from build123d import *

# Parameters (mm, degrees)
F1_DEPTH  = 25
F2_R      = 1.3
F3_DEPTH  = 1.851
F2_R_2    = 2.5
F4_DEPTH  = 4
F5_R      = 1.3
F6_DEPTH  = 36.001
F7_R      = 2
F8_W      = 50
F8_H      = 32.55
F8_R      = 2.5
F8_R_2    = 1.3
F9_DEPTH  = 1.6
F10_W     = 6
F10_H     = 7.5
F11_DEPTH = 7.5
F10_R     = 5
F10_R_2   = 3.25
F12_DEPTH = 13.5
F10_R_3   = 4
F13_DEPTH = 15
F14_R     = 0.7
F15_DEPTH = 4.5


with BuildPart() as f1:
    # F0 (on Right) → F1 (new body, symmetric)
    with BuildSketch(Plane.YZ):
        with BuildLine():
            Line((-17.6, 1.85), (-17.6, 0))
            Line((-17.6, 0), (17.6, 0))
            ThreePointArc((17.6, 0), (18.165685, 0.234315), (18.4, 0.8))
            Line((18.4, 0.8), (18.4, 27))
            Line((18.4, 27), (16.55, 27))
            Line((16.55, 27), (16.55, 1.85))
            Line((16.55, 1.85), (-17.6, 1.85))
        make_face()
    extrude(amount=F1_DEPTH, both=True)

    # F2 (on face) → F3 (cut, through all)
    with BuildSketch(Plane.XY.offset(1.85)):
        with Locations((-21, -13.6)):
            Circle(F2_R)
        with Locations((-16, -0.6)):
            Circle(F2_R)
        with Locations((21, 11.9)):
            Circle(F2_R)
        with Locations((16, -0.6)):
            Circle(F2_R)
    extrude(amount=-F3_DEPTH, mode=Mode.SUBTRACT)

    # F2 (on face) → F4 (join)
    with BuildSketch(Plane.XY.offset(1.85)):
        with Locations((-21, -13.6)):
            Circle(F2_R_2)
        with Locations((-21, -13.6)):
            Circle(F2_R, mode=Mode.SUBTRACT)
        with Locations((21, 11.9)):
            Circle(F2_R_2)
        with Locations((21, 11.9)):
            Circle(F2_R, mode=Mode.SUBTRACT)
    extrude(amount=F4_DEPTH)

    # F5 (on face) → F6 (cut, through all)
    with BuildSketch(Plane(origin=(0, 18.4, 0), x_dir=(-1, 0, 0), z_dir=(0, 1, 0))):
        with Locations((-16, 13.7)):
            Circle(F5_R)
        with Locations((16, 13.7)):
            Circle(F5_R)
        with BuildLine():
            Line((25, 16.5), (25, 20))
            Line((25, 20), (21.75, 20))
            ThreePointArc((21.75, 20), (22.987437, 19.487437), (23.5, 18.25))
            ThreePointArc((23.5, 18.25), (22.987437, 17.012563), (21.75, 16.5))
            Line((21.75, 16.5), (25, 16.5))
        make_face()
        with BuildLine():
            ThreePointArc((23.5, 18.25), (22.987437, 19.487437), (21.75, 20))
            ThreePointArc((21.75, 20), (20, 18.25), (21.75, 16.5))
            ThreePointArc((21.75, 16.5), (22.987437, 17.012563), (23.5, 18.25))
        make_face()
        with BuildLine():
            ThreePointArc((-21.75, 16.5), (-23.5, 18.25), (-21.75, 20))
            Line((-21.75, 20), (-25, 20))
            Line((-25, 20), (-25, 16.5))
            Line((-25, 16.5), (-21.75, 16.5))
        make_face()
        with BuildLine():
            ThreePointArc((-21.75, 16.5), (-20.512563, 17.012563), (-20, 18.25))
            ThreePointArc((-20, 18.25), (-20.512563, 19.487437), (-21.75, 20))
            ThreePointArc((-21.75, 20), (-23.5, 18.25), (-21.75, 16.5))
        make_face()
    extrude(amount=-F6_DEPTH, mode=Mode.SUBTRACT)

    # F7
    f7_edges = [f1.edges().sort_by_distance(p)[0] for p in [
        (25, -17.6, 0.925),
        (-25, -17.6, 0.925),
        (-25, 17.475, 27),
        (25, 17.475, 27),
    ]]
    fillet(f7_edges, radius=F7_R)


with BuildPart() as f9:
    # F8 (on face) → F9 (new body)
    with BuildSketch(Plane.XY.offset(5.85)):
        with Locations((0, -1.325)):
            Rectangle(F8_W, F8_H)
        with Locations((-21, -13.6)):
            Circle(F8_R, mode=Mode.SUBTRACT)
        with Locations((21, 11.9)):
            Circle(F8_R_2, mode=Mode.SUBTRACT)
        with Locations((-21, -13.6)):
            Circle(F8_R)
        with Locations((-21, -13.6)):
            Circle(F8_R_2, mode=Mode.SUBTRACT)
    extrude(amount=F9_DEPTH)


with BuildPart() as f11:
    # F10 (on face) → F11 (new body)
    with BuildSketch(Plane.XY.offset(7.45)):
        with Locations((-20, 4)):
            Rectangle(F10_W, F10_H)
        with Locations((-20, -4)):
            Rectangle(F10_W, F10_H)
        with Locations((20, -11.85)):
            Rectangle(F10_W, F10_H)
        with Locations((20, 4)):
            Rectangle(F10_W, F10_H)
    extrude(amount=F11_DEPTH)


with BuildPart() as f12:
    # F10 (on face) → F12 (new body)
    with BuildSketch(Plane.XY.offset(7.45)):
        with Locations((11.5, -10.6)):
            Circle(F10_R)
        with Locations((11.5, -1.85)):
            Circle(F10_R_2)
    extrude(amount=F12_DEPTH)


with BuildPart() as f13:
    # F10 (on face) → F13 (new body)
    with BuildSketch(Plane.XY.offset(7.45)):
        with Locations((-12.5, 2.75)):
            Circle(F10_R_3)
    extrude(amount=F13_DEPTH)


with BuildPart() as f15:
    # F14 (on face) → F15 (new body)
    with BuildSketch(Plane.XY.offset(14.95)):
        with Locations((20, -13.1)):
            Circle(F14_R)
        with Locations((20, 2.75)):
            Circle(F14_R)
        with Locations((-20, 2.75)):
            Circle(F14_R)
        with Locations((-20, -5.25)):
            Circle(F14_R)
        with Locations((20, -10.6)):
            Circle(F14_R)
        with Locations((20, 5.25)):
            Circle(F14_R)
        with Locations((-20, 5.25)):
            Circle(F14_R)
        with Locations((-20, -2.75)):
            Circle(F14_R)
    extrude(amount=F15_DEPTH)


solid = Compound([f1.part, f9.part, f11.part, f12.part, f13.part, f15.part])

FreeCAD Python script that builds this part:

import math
import FreeCAD as App
import Part
import Sketcher
from FreeCAD import Vector
Q = App.Units.Quantity


def edges_at(feature, points):
    """Names of the edges that pass closest to the given points."""
    edges = feature.Shape.Edges
    near = lambda p: min(range(len(edges)), key=lambda i: edges[i].distToShape(Part.Vertex(*p))[0])
    return sorted({f"Edge{near(p) + 1}" for p in points})

doc = App.newDocument("Part")
body = doc.addObject("PartDesign::Body", "Body")

# Sketch on YZ plane
sketch1 = doc.addObject("Sketcher::SketchObject", "Sketch")
body.addObject(sketch1)
sketch1.AttachmentSupport = (doc.YZ_Plane, [""])
sketch1.MapMode = "FlatFace"
sketch1.addGeometry(Part.LineSegment(Vector(-17.6, 1.85, 0), Vector(-17.6, 0, 0)), False)
sketch1.addGeometry(Part.LineSegment(Vector(-17.6, 0, 0), Vector(17.6, 0, 0)), False)
sketch1.addGeometry(Part.ArcOfCircle(Part.Circle(Vector(17.599999, 0.800001, 0), Vector(0, 0, 1), 0.800001), math.radians(-89.999896), math.radians(-0.000104)), False)
sketch1.addGeometry(Part.LineSegment(Vector(18.4, 0.8, 0), Vector(18.4, 27, 0)), False)
sketch1.addGeometry(Part.LineSegment(Vector(18.4, 27, 0), Vector(16.55, 27, 0)), False)
sketch1.addGeometry(Part.LineSegment(Vector(16.55, 27, 0), Vector(16.55, 1.85, 0)), False)
sketch1.addGeometry(Part.LineSegment(Vector(16.55, 1.85, 0), Vector(-17.6, 1.85, 0)), False)
sketch1.addConstraint(Sketcher.Constraint("Coincident", 0, 2, 1, 1))
sketch1.addConstraint(Sketcher.Constraint("Tangent", 1, 2, 2, 1))
sketch1.addConstraint(Sketcher.Constraint("Tangent", 2, 2, 3, 1))
sketch1.addConstraint(Sketcher.Constraint("Coincident", 3, 2, 4, 1))
sketch1.addConstraint(Sketcher.Constraint("Coincident", 4, 2, 5, 1))
sketch1.addConstraint(Sketcher.Constraint("Coincident", 5, 2, 6, 1))
sketch1.addConstraint(Sketcher.Constraint("Coincident", 6, 2, 0, 1))
sketch1.addConstraint(Sketcher.Constraint("Vertical", 0))
sketch1.addConstraint(Sketcher.Constraint("Horizontal", 1))
sketch1.addConstraint(Sketcher.Constraint("Vertical", 3))
sketch1.addConstraint(Sketcher.Constraint("Horizontal", 4))
sketch1.addConstraint(Sketcher.Constraint("Vertical", 5))
sketch1.addConstraint(Sketcher.Constraint("Horizontal", 6))
sketch1.addConstraint(Sketcher.Constraint("Symmetric", 0, 2, 1, 2, -1, 1))
sketch1.addConstraint(Sketcher.Constraint("Equal", 4, 0))
sketch1.addConstraint(Sketcher.Constraint("Radius", 2, Q("0.800001 mm")))
sketch1.addConstraint(Sketcher.Constraint("DistanceX", 1, 1, 1, 2, Q("35.2 mm")))
sketch1.addConstraint(Sketcher.Constraint("DistanceY", 3, 1, 3, 2, Q("26.2 mm")))
sketch1.addConstraint(Sketcher.Constraint("DistanceX", 4, 2, 4, 1, Q("1.85 mm")))
pad1 = doc.addObject("PartDesign::Pad", "Pad")
body.addObject(pad1)
pad1.Profile = sketch1
pad1.Length = 50
pad1.Midplane = True

# Sketch on XY plane
sketch2 = doc.addObject("Sketcher::SketchObject", "Sketch001")
body.addObject(sketch2)
sketch2.AttachmentSupport = (doc.XY_Plane, [""])
sketch2.MapMode = "FlatFace"
sketch2.AttachmentOffset = App.Placement(Vector(0, 0, 1.85), App.Rotation())
sketch2.addGeometry(Part.Circle(Vector(-21, -13.6, 0), Vector(0, 0, 1), 1.3), False)
sketch2.addGeometry(Part.Circle(Vector(-16, -0.6, 0), Vector(0, 0, 1), 1.3), False)
sketch2.addGeometry(Part.Circle(Vector(21, 11.9, 0), Vector(0, 0, 1), 1.3), False)
sketch2.addGeometry(Part.Circle(Vector(16, -0.6, 0), Vector(0, 0, 1), 1.3), False)
sketch2.addConstraint(Sketcher.Constraint("Equal", 0, 1))
sketch2.addConstraint(Sketcher.Constraint("Equal", 1, 2))
sketch2.addConstraint(Sketcher.Constraint("Equal", 2, 3))
sketch2.addConstraint(Sketcher.Constraint("Symmetric", 1, 3, 3, 3, -2))
sketch2.addConstraint(Sketcher.Constraint("Diameter", 0, Q("2.6 mm")))
sketch2.addConstraint(Sketcher.Constraint("DistanceX", 0, 3, -1, 1, Q("21 mm")))
sketch2.addConstraint(Sketcher.Constraint("DistanceX", 1, 3, -1, 1, Q("16 mm")))
sketch2.addConstraint(Sketcher.Constraint("DistanceX", -1, 1, 2, 3, Q("21 mm")))
sketch2.addConstraint(Sketcher.Constraint("DistanceY", 0, 3, 1, 3, Q("13 mm")))
sketch2.addConstraint(Sketcher.Constraint("DistanceY", 0, 3, -1, 1, Q("13.6 mm")))
sketch2.addConstraint(Sketcher.Constraint("DistanceY", -1, 1, 2, 3, Q("11.9 mm")))
pocket1 = doc.addObject("PartDesign::Pocket", "Pocket")
body.addObject(pocket1)
pocket1.Profile = sketch2
pocket1.Type = "ThroughAll"

# Sketch on XY plane
sketch3 = doc.addObject("Sketcher::SketchObject", "Sketch002")
body.addObject(sketch3)
sketch3.AttachmentSupport = (doc.XY_Plane, [""])
sketch3.MapMode = "FlatFace"
sketch3.AttachmentOffset = App.Placement(Vector(0, 0, 1.85), App.Rotation())
sketch3.addGeometry(Part.Circle(Vector(-21, -13.6, 0), Vector(0, 0, 1), 2.5), False)
sketch3.addGeometry(Part.Circle(Vector(-21, -13.6, 0), Vector(0, 0, 1), 1.3), False)
sketch3.addGeometry(Part.Circle(Vector(21, 11.9, 0), Vector(0, 0, 1), 2.5), False)
sketch3.addGeometry(Part.Circle(Vector(21, 11.9, 0), Vector(0, 0, 1), 1.3), False)
sketch3.addConstraint(Sketcher.Constraint("Coincident", 1, 3, 0, 3))
sketch3.addConstraint(Sketcher.Constraint("Coincident", 3, 3, 2, 3))
sketch3.addConstraint(Sketcher.Constraint("Equal", 0, 2))
sketch3.addConstraint(Sketcher.Constraint("Equal", 1, 3))
sketch3.addConstraint(Sketcher.Constraint("Diameter", 0, Q("5 mm")))
sketch3.addConstraint(Sketcher.Constraint("Diameter", 1, Q("2.6 mm")))
sketch3.addConstraint(Sketcher.Constraint("DistanceX", 0, 3, -1, 1, Q("21 mm")))
sketch3.addConstraint(Sketcher.Constraint("DistanceX", -1, 1, 2, 3, Q("21 mm")))
sketch3.addConstraint(Sketcher.Constraint("DistanceY", 0, 3, -1, 1, Q("13.6 mm")))
sketch3.addConstraint(Sketcher.Constraint("DistanceY", -1, 1, 2, 3, Q("11.9 mm")))
pad2 = doc.addObject("PartDesign::Pad", "Pad001")
body.addObject(pad2)
pad2.Profile = sketch3
pad2.Length = 4

# Sketch on XZ plane
sketch4 = doc.addObject("Sketcher::SketchObject", "Sketch003")
body.addObject(sketch4)
sketch4.AttachmentSupport = (doc.XZ_Plane, [""])
sketch4.MapMode = "FlatFace"
sketch4.AttachmentOffset = App.Placement(Vector(0, 0, -18.4), App.Rotation())
sketch4.addGeometry(Part.Circle(Vector(16, 13.7, 0), Vector(0, 0, 1), 1.3), False)
sketch4.addGeometry(Part.Circle(Vector(-16, 13.7, 0), Vector(0, 0, 1), 1.3), False)
sketch4.addGeometry(Part.LineSegment(Vector(-25, 16.5, 0), Vector(-25, 20, 0)), False)
sketch4.addGeometry(Part.LineSegment(Vector(-25, 20, 0), Vector(-21.75, 20, 0)), False)
sketch4.addGeometry(Part.ArcOfCircle(Part.Circle(Vector(-21.75, 18.25, 0), Vector(0, 0, 1), 1.75), math.radians(-90), math.radians(90)), False)
sketch4.addGeometry(Part.LineSegment(Vector(-21.75, 16.5, 0), Vector(-25, 16.5, 0)), False)
sketch4.addGeometry(Part.LineSegment(Vector(21.75, 20, 0), Vector(25, 20, 0)), False)
sketch4.addGeometry(Part.LineSegment(Vector(25, 20, 0), Vector(25, 16.5, 0)), False)
sketch4.addGeometry(Part.LineSegment(Vector(25, 16.5, 0), Vector(21.75, 16.5, 0)), False)
sketch4.addGeometry(Part.ArcOfCircle(Part.Circle(Vector(21.75, 18.25, 0), Vector(0, 0, 1), 1.75), math.radians(179.999985), math.radians(270.000015)), False)
sketch4.addGeometry(Part.ArcOfCircle(Part.Circle(Vector(21.75, 18.25, 0), Vector(0, 0, 1), 1.75), math.radians(89.999985), math.radians(180.000015)), False)
sketch4.addConstraint(Sketcher.Constraint("Coincident", 2, 2, 3, 1))
sketch4.addConstraint(Sketcher.Constraint("Tangent", 3, 2, 4, 2))
sketch4.addConstraint(Sketcher.Constraint("Tangent", 4, 1, 5, 1))
sketch4.addConstraint(Sketcher.Constraint("Coincident", 5, 2, 2, 1))
sketch4.addConstraint(Sketcher.Constraint("Coincident", 6, 2, 7, 1))
sketch4.addConstraint(Sketcher.Constraint("Coincident", 7, 2, 8, 1))
sketch4.addConstraint(Sketcher.Constraint("Tangent", 8, 2, 9, 2))
sketch4.addConstraint(Sketcher.Constraint("Tangent", 9, 1, 10, 2))
sketch4.addConstraint(Sketcher.Constraint("Tangent", 10, 1, 6, 1))
sketch4.addConstraint(Sketcher.Constraint("Vertical", 2))
sketch4.addConstraint(Sketcher.Constraint("Horizontal", 3))
sketch4.addConstraint(Sketcher.Constraint("Horizontal", 5))
sketch4.addConstraint(Sketcher.Constraint("Horizontal", 6))
sketch4.addConstraint(Sketcher.Constraint("Vertical", 7))
sketch4.addConstraint(Sketcher.Constraint("Horizontal", 8))
sketch4.addConstraint(Sketcher.Constraint("Equal", 0, 1))
sketch4.addConstraint(Sketcher.Constraint("Equal", 4, 9))
sketch4.addConstraint(Sketcher.Constraint("Equal", 9, 10))
sketch4.addConstraint(Sketcher.Constraint("Symmetric", 0, 3, 1, 3, -2))
sketch4.addConstraint(Sketcher.Constraint("Symmetric", 4, 3, 9, 3, -2))
sketch4.addConstraint(Sketcher.Constraint("Horizontal", 10, 3, 9, 1))
sketch4.addConstraint(Sketcher.Constraint("Equal", 5, 6))
sketch4.addConstraint(Sketcher.Constraint("Diameter", 0, Q("2.6 mm")))
sketch4.addConstraint(Sketcher.Constraint("Radius", 4, Q("1.75 mm")))
sketch4.addConstraint(Sketcher.Constraint("DistanceX", -1, 1, 0, 3, Q("16 mm")))
sketch4.addConstraint(Sketcher.Constraint("DistanceX", 2, 2, -1, 1, Q("25 mm")))
sketch4.addConstraint(Sketcher.Constraint("DistanceY", -1, 1, 2, 2, Q("20 mm")))
sketch4.addConstraint(Sketcher.Constraint("DistanceX", -1, 1, 9, 1, Q("20 mm")))
sketch4.addConstraint(Sketcher.Constraint("DistanceY", -1, 1, 0, 3, Q("13.7 mm")))
pocket2 = doc.addObject("PartDesign::Pocket", "Pocket001")
body.addObject(pocket2)
pocket2.Profile = sketch4
pocket2.Type = "ThroughAll"
pocket2.Reversed = True
doc.recompute()

fillet = doc.addObject("PartDesign::Fillet", "Fillet")
body.addObject(fillet)
fillet.Base = (pocket2, edges_at(pocket2, [
    (25, -17.6, 0.925),
    (-25, -17.6, 0.925),
    (-25, 17.475, 27),
    (25, 17.475, 27),
]))
fillet.Radius = 2
body2 = doc.addObject("PartDesign::Body", "Body001")

# Sketch on XY plane
sketch5 = doc.addObject("Sketcher::SketchObject", "Sketch004")
body2.addObject(sketch5)
sketch5.AttachmentSupport = (doc.getObject("XY_Plane001"), [""])
sketch5.MapMode = "FlatFace"
sketch5.AttachmentOffset = App.Placement(Vector(0, 0, 5.85), App.Rotation())
sketch5.addGeometry(Part.LineSegment(Vector(-25, 14.95, 0), Vector(-25, -17.6, 0)), False)
sketch5.addGeometry(Part.LineSegment(Vector(-25, -17.6, 0), Vector(25, -17.6, 0)), False)
sketch5.addGeometry(Part.LineSegment(Vector(25, -17.6, 0), Vector(25, 14.95, 0)), False)
sketch5.addGeometry(Part.LineSegment(Vector(25, 14.95, 0), Vector(-25, 14.95, 0)), False)
sketch5.addGeometry(Part.Circle(Vector(-21, -13.6, 0), Vector(0, 0, 1), 1.3), False)
sketch5.addGeometry(Part.Circle(Vector(21, 11.9, 0), Vector(0, 0, 1), 1.3), False)
sketch5.addConstraint(Sketcher.Constraint("Coincident", 0, 2, 1, 1))
sketch5.addConstraint(Sketcher.Constraint("Coincident", 1, 2, 2, 1))
sketch5.addConstraint(Sketcher.Constraint("Coincident", 2, 2, 3, 1))
sketch5.addConstraint(Sketcher.Constraint("Coincident", 3, 2, 0, 1))
sketch5.addConstraint(Sketcher.Constraint("Vertical", 0))
sketch5.addConstraint(Sketcher.Constraint("Horizontal", 1))
sketch5.addConstraint(Sketcher.Constraint("Vertical", 2))
sketch5.addConstraint(Sketcher.Constraint("Horizontal", 3))
sketch5.addConstraint(Sketcher.Constraint("Equal", 4, 5))
sketch5.addConstraint(Sketcher.Constraint("Diameter", 4, Q("2.6 mm")))
sketch5.addConstraint(Sketcher.Constraint("DistanceX", 1, 1, 1, 2, Q("50 mm")))
sketch5.addConstraint(Sketcher.Constraint("DistanceX", 4, 3, -1, 1, Q("21 mm")))
sketch5.addConstraint(Sketcher.Constraint("DistanceX", -1, 1, 5, 3, Q("21 mm")))
sketch5.addConstraint(Sketcher.Constraint("DistanceX", 0, 2, -1, 1, Q("25 mm")))
sketch5.addConstraint(Sketcher.Constraint("DistanceY", 0, 2, 4, 3, Q("4 mm")))
sketch5.addConstraint(Sketcher.Constraint("DistanceY", 0, 2, 0, 1, Q("32.55 mm")))
sketch5.addConstraint(Sketcher.Constraint("DistanceY", 4, 3, -1, 1, Q("13.6 mm")))
sketch5.addConstraint(Sketcher.Constraint("DistanceY", -1, 1, 5, 3, Q("11.9 mm")))
pad3 = doc.addObject("PartDesign::Pad", "Pad002")
body2.addObject(pad3)
pad3.Profile = sketch5
pad3.Length = 1.6
body3 = doc.addObject("PartDesign::Body", "Body002")
body3.AllowCompound = True

# Sketch on XY plane
sketch6 = doc.addObject("Sketcher::SketchObject", "Sketch005")
body3.addObject(sketch6)
sketch6.AttachmentSupport = (doc.getObject("XY_Plane002"), [""])
sketch6.MapMode = "FlatFace"
sketch6.AttachmentOffset = App.Placement(Vector(0, 0, 7.45), App.Rotation())
sketch6.addGeometry(Part.LineSegment(Vector(-23, 7.75, 0), Vector(-23, 0.25, 0)), False)
sketch6.addGeometry(Part.LineSegment(Vector(-23, 0.25, 0), Vector(-17, 0.25, 0)), False)
sketch6.addGeometry(Part.LineSegment(Vector(-17, 0.25, 0), Vector(-17, 7.75, 0)), False)
sketch6.addGeometry(Part.LineSegment(Vector(-17, 7.75, 0), Vector(-23, 7.75, 0)), False)
sketch6.addGeometry(Part.LineSegment(Vector(-23, -0.25, 0), Vector(-23, -7.75, 0)), False)
sketch6.addGeometry(Part.LineSegment(Vector(-23, -7.75, 0), Vector(-17, -7.75, 0)), False)
sketch6.addGeometry(Part.LineSegment(Vector(-17, -7.75, 0), Vector(-17, -0.25, 0)), False)
sketch6.addGeometry(Part.LineSegment(Vector(-17, -0.25, 0), Vector(-23, -0.25, 0)), False)
sketch6.addGeometry(Part.LineSegment(Vector(17, -8.1, 0), Vector(17, -15.6, 0)), False)
sketch6.addGeometry(Part.LineSegment(Vector(17, -15.6, 0), Vector(23, -15.6, 0)), False)
sketch6.addGeometry(Part.LineSegment(Vector(23, -15.6, 0), Vector(23, -8.1, 0)), False)
sketch6.addGeometry(Part.LineSegment(Vector(23, -8.1, 0), Vector(17, -8.1, 0)), False)
sketch6.addGeometry(Part.LineSegment(Vector(17, 7.75, 0), Vector(17, 0.25, 0)), False)
sketch6.addGeometry(Part.LineSegment(Vector(17, 0.25, 0), Vector(23, 0.25, 0)), False)
sketch6.addGeometry(Part.LineSegment(Vector(23, 0.25, 0), Vector(23, 7.75, 0)), False)
sketch6.addGeometry(Part.LineSegment(Vector(23, 7.75, 0), Vector(17, 7.75, 0)), False)
sketch6.addConstraint(Sketcher.Constraint("Coincident", 0, 2, 1, 1))
sketch6.addConstraint(Sketcher.Constraint("Coincident", 1, 2, 2, 1))
sketch6.addConstraint(Sketcher.Constraint("Coincident", 2, 2, 3, 1))
sketch6.addConstraint(Sketcher.Constraint("Coincident", 3, 2, 0, 1))
sketch6.addConstraint(Sketcher.Constraint("Coincident", 4, 2, 5, 1))
sketch6.addConstraint(Sketcher.Constraint("Coincident", 5, 2, 6, 1))
sketch6.addConstraint(Sketcher.Constraint("Coincident", 6, 2, 7, 1))
sketch6.addConstraint(Sketcher.Constraint("Coincident", 7, 2, 4, 1))
sketch6.addConstraint(Sketcher.Constraint("Coincident", 8, 2, 9, 1))
sketch6.addConstraint(Sketcher.Constraint("Coincident", 9, 2, 10, 1))
sketch6.addConstraint(Sketcher.Constraint("Coincident", 10, 2, 11, 1))
sketch6.addConstraint(Sketcher.Constraint("Coincident", 11, 2, 8, 1))
sketch6.addConstraint(Sketcher.Constraint("Coincident", 12, 2, 13, 1))
sketch6.addConstraint(Sketcher.Constraint("Coincident", 13, 2, 14, 1))
sketch6.addConstraint(Sketcher.Constraint("Coincident", 14, 2, 15, 1))
sketch6.addConstraint(Sketcher.Constraint("Coincident", 15, 2, 12, 1))
sketch6.addConstraint(Sketcher.Constraint("Vertical", 0))
sketch6.addConstraint(Sketcher.Constraint("Horizontal", 1))
sketch6.addConstraint(Sketcher.Constraint("Vertical", 2))
sketch6.addConstraint(Sketcher.Constraint("Horizontal", 3))
sketch6.addConstraint(Sketcher.Constraint("Vertical", 4))
sketch6.addConstraint(Sketcher.Constraint("Horizontal", 5))
sketch6.addConstraint(Sketcher.Constraint("Vertical", 6))
sketch6.addConstraint(Sketcher.Constraint("Horizontal", 7))
sketch6.addConstraint(Sketcher.Constraint("Vertical", 8))
sketch6.addConstraint(Sketcher.Constraint("Horizontal", 9))
sketch6.addConstraint(Sketcher.Constraint("Vertical", 10))
sketch6.addConstraint(Sketcher.Constraint("Horizontal", 11))
sketch6.addConstraint(Sketcher.Constraint("Vertical", 12))
sketch6.addConstraint(Sketcher.Constraint("Horizontal", 13))
sketch6.addConstraint(Sketcher.Constraint("Vertical", 14))
sketch6.addConstraint(Sketcher.Constraint("Horizontal", 15))
sketch6.addConstraint(Sketcher.Constraint("Symmetric", 6, 2, 12, 2, -1, 1))
sketch6.addConstraint(Sketcher.Constraint("Symmetric", 4, 2, 14, 2, -1, 1))
sketch6.addConstraint(Sketcher.Constraint("Symmetric", 1, 2, 12, 2, -2))
sketch6.addConstraint(Sketcher.Constraint("Symmetric", 3, 2, 14, 2, -2))
sketch6.addConstraint(Sketcher.Constraint("Vertical", 11, 2, 12, 2))
sketch6.addConstraint(Sketcher.Constraint("Vertical", 10, 2, 13, 2))
sketch6.addConstraint(Sketcher.Constraint("Equal", 6, 8))
sketch6.addConstraint(Sketcher.Constraint("DistanceX", 1, 1, 1, 2, Q("6 mm")))
sketch6.addConstraint(Sketcher.Constraint("DistanceY", 0, 2, 0, 1, Q("7.5 mm")))
sketch6.addConstraint(Sketcher.Constraint("DistanceX", 0, 2, -1, 1, Q("23 mm")))
sketch6.addConstraint(Sketcher.Constraint("DistanceY", 4, 2, 0, 2, Q("8 mm")))
sketch6.addConstraint(Sketcher.Constraint("DistanceY", 8, 2, -1, 1, Q("15.6 mm")))
pad4 = doc.addObject("PartDesign::Pad", "Pad003")
body3.addObject(pad4)
pad4.Profile = sketch6
pad4.Length = 7.5
body4 = doc.addObject("PartDesign::Body", "Body003")
body4.AllowCompound = True

# Sketch on XY plane
sketch7 = doc.addObject("Sketcher::SketchObject", "Sketch006")
body4.addObject(sketch7)
sketch7.AttachmentSupport = (doc.getObject("XY_Plane003"), [""])
sketch7.MapMode = "FlatFace"
sketch7.AttachmentOffset = App.Placement(Vector(0, 0, 7.45), App.Rotation())
sketch7.addGeometry(Part.Circle(Vector(11.5, -10.6, 0), Vector(0, 0, 1), 5), False)
sketch7.addGeometry(Part.Circle(Vector(11.5, -1.85, 0), Vector(0, 0, 1), 3.25), False)
sketch7.addConstraint(Sketcher.Constraint("Vertical", 0, 3, 1, 3))
sketch7.addConstraint(Sketcher.Constraint("Diameter", 0, Q("10 mm")))
sketch7.addConstraint(Sketcher.Constraint("Diameter", 1, Q("6.5 mm")))
sketch7.addConstraint(Sketcher.Constraint("DistanceX", -1, 1, 0, 3, Q("11.5 mm")))
sketch7.addConstraint(Sketcher.Constraint("DistanceY", 0, 3, -1, 1, Q("10.6 mm")))
sketch7.addConstraint(Sketcher.Constraint("DistanceY", 1, 3, -1, 1, Q("1.85 mm")))
pad5 = doc.addObject("PartDesign::Pad", "Pad004")
body4.addObject(pad5)
pad5.Profile = sketch7
pad5.Length = 13.5
body5 = doc.addObject("PartDesign::Body", "Body004")

# Sketch on XY plane
sketch8 = doc.addObject("Sketcher::SketchObject", "Sketch007")
body5.addObject(sketch8)
sketch8.AttachmentSupport = (doc.getObject("XY_Plane004"), [""])
sketch8.MapMode = "FlatFace"
sketch8.AttachmentOffset = App.Placement(Vector(0, 0, 7.45), App.Rotation())
sketch8.addGeometry(Part.Circle(Vector(-12.5, 2.75, 0), Vector(0, 0, 1), 4), False)
sketch8.addConstraint(Sketcher.Constraint("Diameter", 0, Q("8 mm")))
sketch8.addConstraint(Sketcher.Constraint("DistanceX", 0, 3, -1, 1, Q("12.5 mm")))
sketch8.addConstraint(Sketcher.Constraint("DistanceY", -1, 1, 0, 3, Q("2.75 mm")))
pad6 = doc.addObject("PartDesign::Pad", "Pad005")
body5.addObject(pad6)
pad6.Profile = sketch8
pad6.Length = 15
body6 = doc.addObject("PartDesign::Body", "Body005")
body6.AllowCompound = True

# Sketch on XY plane
sketch9 = doc.addObject("Sketcher::SketchObject", "Sketch008")
body6.addObject(sketch9)
sketch9.AttachmentSupport = (doc.getObject("XY_Plane005"), [""])
sketch9.MapMode = "FlatFace"
sketch9.AttachmentOffset = App.Placement(Vector(0, 0, 14.95), App.Rotation())
sketch9.addGeometry(Part.Circle(Vector(20, -13.1, 0), Vector(0, 0, 1), 0.7), False)
sketch9.addGeometry(Part.Circle(Vector(20, 2.75, 0), Vector(0, 0, 1), 0.7), False)
sketch9.addGeometry(Part.Circle(Vector(-20, 2.75, 0), Vector(0, 0, 1), 0.7), False)
sketch9.addGeometry(Part.Circle(Vector(-20, -5.25, 0), Vector(0, 0, 1), 0.7), False)
sketch9.addGeometry(Part.Circle(Vector(20, -10.6, 0), Vector(0, 0, 1), 0.7), False)
sketch9.addGeometry(Part.Circle(Vector(20, 5.25, 0), Vector(0, 0, 1), 0.7), False)
sketch9.addGeometry(Part.Circle(Vector(-20, 5.25, 0), Vector(0, 0, 1), 0.7), False)
sketch9.addGeometry(Part.Circle(Vector(-20, -2.75, 0), Vector(0, 0, 1), 0.7), False)
sketch9.addConstraint(Sketcher.Constraint("Equal", 0, 1))
sketch9.addConstraint(Sketcher.Constraint("Equal", 1, 2))
sketch9.addConstraint(Sketcher.Constraint("Equal", 2, 3))
sketch9.addConstraint(Sketcher.Constraint("Equal", 3, 4))
sketch9.addConstraint(Sketcher.Constraint("Equal", 4, 5))
sketch9.addConstraint(Sketcher.Constraint("Equal", 5, 6))
sketch9.addConstraint(Sketcher.Constraint("Equal", 6, 7))
sketch9.addConstraint(Sketcher.Constraint("Symmetric", 3, 3, 5, 3, -1, 1))
sketch9.addConstraint(Sketcher.Constraint("Symmetric", 1, 3, 7, 3, -1, 1))
sketch9.addConstraint(Sketcher.Constraint("Symmetric", 1, 3, 2, 3, -2))
sketch9.addConstraint(Sketcher.Constraint("Symmetric", 5, 3, 6, 3, -2))
sketch9.addConstraint(Sketcher.Constraint("Vertical", 0, 3, 1, 3))
sketch9.addConstraint(Sketcher.Constraint("Vertical", 2, 3, 3, 3))
sketch9.addConstraint(Sketcher.Constraint("Vertical", 1, 3, 4, 3))
sketch9.addConstraint(Sketcher.Constraint("Diameter", 0, Q("1.4 mm")))
sketch9.addConstraint(Sketcher.Constraint("DistanceX", -1, 1, 0, 3, Q("20 mm")))
sketch9.addConstraint(Sketcher.Constraint("DistanceY", 3, 3, 2, 3, Q("8 mm")))
sketch9.addConstraint(Sketcher.Constraint("DistanceY", 0, 3, -1, 1, Q("13.1 mm")))
sketch9.addConstraint(Sketcher.Constraint("DistanceY", 4, 3, -1, 1, Q("10.6 mm")))
sketch9.addConstraint(Sketcher.Constraint("DistanceY", 1, 3, 5, 3, Q("2.5 mm")))
pad7 = doc.addObject("PartDesign::Pad", "Pad006")
body6.addObject(pad7)
pad7.Profile = sketch9
pad7.Length = 4.5

doc.recompute()
